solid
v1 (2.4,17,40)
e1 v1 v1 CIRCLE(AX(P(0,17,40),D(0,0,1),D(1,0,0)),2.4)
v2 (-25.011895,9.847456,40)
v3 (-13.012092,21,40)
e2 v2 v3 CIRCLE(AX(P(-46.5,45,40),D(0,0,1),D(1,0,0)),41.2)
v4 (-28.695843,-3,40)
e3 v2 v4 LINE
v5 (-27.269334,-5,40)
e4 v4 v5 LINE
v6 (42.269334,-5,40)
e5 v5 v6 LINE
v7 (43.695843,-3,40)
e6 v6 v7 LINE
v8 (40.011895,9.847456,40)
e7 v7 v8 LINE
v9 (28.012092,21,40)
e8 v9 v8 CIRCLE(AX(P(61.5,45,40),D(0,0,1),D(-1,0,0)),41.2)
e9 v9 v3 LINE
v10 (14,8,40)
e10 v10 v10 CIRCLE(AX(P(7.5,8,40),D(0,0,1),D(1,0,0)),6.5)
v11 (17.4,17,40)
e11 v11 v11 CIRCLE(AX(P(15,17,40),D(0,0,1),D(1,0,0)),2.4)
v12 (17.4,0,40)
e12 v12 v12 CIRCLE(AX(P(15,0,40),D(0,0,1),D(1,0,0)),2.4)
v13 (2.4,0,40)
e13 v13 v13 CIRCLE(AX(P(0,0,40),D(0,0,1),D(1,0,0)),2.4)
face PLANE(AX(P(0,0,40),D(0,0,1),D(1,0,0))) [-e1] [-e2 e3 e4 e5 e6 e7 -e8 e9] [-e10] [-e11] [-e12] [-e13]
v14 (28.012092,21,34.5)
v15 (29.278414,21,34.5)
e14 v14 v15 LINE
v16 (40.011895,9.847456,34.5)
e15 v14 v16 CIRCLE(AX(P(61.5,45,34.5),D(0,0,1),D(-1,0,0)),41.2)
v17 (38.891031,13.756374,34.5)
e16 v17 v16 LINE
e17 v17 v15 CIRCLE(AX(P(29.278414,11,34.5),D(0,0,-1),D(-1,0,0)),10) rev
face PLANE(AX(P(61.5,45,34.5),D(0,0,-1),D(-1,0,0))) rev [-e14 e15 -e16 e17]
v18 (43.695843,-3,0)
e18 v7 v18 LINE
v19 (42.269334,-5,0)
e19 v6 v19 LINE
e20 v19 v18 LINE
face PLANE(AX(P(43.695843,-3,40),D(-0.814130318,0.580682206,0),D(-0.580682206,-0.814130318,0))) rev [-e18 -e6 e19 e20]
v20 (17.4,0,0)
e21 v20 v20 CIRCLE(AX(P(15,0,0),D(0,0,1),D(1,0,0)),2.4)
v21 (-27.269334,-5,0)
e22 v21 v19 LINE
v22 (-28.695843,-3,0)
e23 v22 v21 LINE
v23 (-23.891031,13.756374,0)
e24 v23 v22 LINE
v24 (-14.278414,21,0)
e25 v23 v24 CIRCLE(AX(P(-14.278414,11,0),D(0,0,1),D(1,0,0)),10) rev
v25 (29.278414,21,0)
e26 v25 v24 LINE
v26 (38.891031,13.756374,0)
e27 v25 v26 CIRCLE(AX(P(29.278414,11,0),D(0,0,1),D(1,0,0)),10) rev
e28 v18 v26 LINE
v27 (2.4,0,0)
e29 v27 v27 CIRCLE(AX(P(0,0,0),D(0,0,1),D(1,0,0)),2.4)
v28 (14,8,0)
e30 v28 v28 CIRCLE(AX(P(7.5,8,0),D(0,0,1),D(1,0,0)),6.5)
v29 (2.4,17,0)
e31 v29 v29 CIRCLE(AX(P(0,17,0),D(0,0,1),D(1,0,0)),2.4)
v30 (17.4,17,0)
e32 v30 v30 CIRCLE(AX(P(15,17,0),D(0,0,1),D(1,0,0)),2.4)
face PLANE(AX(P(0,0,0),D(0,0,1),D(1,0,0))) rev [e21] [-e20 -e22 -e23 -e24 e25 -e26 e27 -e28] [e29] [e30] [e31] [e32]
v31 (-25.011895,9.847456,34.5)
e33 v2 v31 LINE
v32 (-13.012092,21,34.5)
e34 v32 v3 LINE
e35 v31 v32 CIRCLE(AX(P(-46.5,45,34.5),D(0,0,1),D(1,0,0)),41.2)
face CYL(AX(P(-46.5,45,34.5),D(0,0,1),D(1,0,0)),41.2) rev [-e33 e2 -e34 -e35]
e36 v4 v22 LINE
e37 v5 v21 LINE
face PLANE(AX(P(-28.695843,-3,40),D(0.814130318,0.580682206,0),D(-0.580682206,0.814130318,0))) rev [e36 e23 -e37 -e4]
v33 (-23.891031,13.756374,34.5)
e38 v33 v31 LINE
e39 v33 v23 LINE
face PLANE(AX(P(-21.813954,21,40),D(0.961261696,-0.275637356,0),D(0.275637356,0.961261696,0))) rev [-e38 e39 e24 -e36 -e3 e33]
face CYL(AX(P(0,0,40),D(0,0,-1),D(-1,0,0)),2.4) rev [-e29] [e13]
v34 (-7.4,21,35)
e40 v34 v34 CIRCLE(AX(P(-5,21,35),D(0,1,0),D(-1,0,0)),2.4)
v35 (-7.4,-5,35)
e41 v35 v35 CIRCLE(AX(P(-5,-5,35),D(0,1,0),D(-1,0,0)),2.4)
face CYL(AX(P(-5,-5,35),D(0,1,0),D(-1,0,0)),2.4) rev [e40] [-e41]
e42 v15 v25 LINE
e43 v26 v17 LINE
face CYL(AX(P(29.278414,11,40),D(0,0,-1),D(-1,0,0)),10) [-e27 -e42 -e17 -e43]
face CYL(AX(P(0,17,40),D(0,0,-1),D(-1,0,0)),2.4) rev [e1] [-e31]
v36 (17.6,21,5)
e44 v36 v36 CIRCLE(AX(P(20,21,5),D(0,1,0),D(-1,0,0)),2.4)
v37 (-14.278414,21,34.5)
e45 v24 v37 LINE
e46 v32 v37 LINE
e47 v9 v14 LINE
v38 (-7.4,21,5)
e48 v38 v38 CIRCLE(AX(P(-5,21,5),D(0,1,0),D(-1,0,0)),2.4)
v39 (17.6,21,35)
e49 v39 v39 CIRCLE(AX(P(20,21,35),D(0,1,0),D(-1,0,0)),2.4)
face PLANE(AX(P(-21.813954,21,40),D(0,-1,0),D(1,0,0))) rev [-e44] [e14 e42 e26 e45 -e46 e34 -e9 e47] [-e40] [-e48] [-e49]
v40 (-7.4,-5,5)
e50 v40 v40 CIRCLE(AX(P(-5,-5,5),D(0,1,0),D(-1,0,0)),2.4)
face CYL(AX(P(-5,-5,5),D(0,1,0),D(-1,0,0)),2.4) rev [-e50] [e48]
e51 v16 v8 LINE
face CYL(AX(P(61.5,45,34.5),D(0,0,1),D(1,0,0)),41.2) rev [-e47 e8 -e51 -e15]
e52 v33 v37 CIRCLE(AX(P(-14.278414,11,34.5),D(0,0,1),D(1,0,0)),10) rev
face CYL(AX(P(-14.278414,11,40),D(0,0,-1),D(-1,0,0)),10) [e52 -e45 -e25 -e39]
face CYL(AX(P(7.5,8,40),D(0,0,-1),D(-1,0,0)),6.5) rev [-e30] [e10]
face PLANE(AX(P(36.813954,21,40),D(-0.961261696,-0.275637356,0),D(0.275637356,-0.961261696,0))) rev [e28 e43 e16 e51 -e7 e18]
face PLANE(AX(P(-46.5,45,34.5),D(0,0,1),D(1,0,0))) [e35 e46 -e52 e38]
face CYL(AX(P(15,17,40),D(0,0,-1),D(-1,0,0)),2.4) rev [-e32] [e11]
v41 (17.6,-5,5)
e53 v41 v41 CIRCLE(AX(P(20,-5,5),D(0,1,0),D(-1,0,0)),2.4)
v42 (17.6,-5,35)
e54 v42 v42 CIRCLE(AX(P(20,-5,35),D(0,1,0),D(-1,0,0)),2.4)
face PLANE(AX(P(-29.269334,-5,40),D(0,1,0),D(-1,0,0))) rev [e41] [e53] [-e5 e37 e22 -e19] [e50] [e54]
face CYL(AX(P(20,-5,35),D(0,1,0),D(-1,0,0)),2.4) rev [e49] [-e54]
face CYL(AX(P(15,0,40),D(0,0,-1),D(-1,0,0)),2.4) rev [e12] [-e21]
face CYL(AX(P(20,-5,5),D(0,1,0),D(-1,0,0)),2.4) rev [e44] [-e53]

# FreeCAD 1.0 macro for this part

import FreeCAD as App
import Part
import Sketcher
from FreeCAD import Vector
Q = App.Units.Quantity


def edges_at(feature, points):
    """Names of the edges that pass closest to the given points."""
    edges = feature.Shape.Edges
    near = lambda p: min(range(len(edges)), key=lambda i: edges[i].distToShape(Part.Vertex(*p))[0])
    return sorted({f"Edge{near(p) + 1}" for p in points})

doc = App.newDocument("Part")
body = doc.addObject("PartDesign::Body", "Body")

# Sketch on XY plane
sketch1 = body.newObject("Sketcher::SketchObject", "Sketch")
sketch1.AttachmentSupport = (doc.getObject("XY_Plane"), [""])
sketch1.MapMode = "FlatFace"
sketch1.addGeometry([
    Part.LineSegment(Vector(-29.3, -5, 0), Vector(44.3, -5, 0)),  # 0
    Part.LineSegment(Vector(44.3, -5, 0), Vector(36.8, 21, 0)),  # 1
    Part.LineSegment(Vector(36.8, 21, 0), Vector(-21.8, 21, 0)),  # 2
    Part.LineSegment(Vector(-21.8, 21, 0), Vector(-29.3, -5, 0)),  # 3
    Part.Circle(Vector(0, 0, 0), Vector(0, 0, 1), 2.4),  # 4
    Part.Circle(Vector(15, 0, 0), Vector(0, 0, 1), 2.4),  # 5
    Part.Circle(Vector(7.5, 8, 0), Vector(0, 0, 1), 6.5),  # 6
    Part.Circle(Vector(0, 17, 0), Vector(0, 0, 1), 2.4),  # 7
    Part.Circle(Vector(15, 17, 0), Vector(0, 0, 1), 2.4),  # 8
], False)
sketch1.addConstraint([
    Sketcher.Constraint("Coincident", 0, 2, 1, 1),
    Sketcher.Constraint("Coincident", 1, 2, 2, 1),
    Sketcher.Constraint("Coincident", 2, 2, 3, 1),
    Sketcher.Constraint("Coincident", 3, 2, 0, 1),
    Sketcher.Constraint("Horizontal", 0),
    Sketcher.Constraint("Horizontal", 2),
    Sketcher.Constraint("Coincident", 4, 3, -1, 1),
    Sketcher.Constraint("Equal", 4, 5),
    Sketcher.Constraint("Equal", 5, 7),
    Sketcher.Constraint("Equal", 7, 8),
    Sketcher.Constraint("PointOnObject", 5, 3, -1),
    Sketcher.Constraint("PointOnObject", 7, 3, -2),
    Sketcher.Constraint("Horizontal", 7, 3, 8, 3),
    Sketcher.Constraint("Vertical", 5, 3, 8, 3),
    Sketcher.Constraint("Equal", 1, 3),
    Sketcher.Constraint("Diameter", 6, 13.0),
    Sketcher.Constraint("Diameter", 4, 4.8),
    Sketcher.Constraint("Angle", 1, Q("106 deg")),
    Sketcher.Constraint("DistanceX", -1, 1, 5, 3, 15.0),
    Sketcher.Constraint("DistanceY", -1, 1, 6, 3, 8.0),
    Sketcher.Constraint("DistanceY", -1, 1, 7, 3, 17.0),
    Sketcher.Constraint("DistanceY", 0, 2, -1, 1, 5.0),
    Sketcher.Constraint("DistanceY", -1, 1, 1, 2, 21.0),
    Sketcher.Constraint("DistanceX", -1, 1, 6, 3, 7.5),
    Sketcher.Constraint("DistanceX", 0, 1, 0, 2, 73.538668),
    Sketcher.Constraint("DistanceX", -1, 1, 0, 2, 44.269334),
])
pad1 = body.newObject("PartDesign::Pad", "Pad")
pad1.Profile = sketch1
pad1.Length = 40
doc.recompute()

fillet = body.newObject("PartDesign::Fillet", "Fillet")
fillet.Base = (pad1, edges_at(pad1, [(-21.814, 21, 20), (36.814, 21, 20)]))
fillet.Radius = 10

# Sketch on XZ plane
sketch2 = body.newObject("Sketcher::SketchObject", "Sketch001")
sketch2.AttachmentSupport = (doc.getObject("XZ_Plane"), [""])
sketch2.MapMode = "FlatFace"
sketch2.AttachmentOffset = App.Placement(Vector(0, 0, -21), App.Rotation())
sketch2.addGeometry([
    Part.Circle(Vector(-5, 5, 0), Vector(0, 0, 1), 2.4),
    Part.Circle(Vector(20, 5, 0), Vector(0, 0, 1), 2.4),
    Part.Circle(Vector(-5, 35, 0), Vector(0, 0, 1), 2.4),
    Part.Circle(Vector(20, 35, 0), Vector(0, 0, 1), 2.4),
], False)
sketch2.addConstraint([
    Sketcher.Constraint("Equal", 0, 1),
    Sketcher.Constraint("Equal", 1, 2),
    Sketcher.Constraint("Equal", 2, 3),
    Sketcher.Constraint("Horizontal", 0, 3, 1, 3),
    Sketcher.Constraint("Horizontal", 2, 3, 3, 3),
    Sketcher.Constraint("Vertical", 0, 3, 2, 3),
    Sketcher.Constraint("Vertical", 1, 3, 3, 3),
    Sketcher.Constraint("Diameter", 0, 4.8),
    Sketcher.Constraint("DistanceX", 0, 3, -1, 1, 5.0),
    Sketcher.Constraint("DistanceY", -1, 1, 0, 3, 5.0),
    Sketcher.Constraint("DistanceX", -1, 1, 1, 3, 20.0),
    Sketcher.Constraint("DistanceY", -1, 1, 2, 3, 35.0),
])
pocket1 = body.newObject("PartDesign::Pocket", "Pocket")
pocket1.Profile = sketch2
pocket1.Type = "ThroughAll"
pocket1.Reversed = True

# Sketch on XY plane
sketch3 = body.newObject("Sketcher::SketchObject", "Sketch002")
sketch3.AttachmentSupport = (doc.getObject("XY_Plane"), [""])
sketch3.MapMode = "FlatFace"
sketch3.AttachmentOffset = App.Placement(Vector(0, 0, 40), App.Rotation())
sketch3.addGeometry([
    Part.Circle(Vector(-46, 45, 0), Vector(0, 0, 1), 41),
    Part.Circle(Vector(62, 45, 0), Vector(0, 0, 1), 41),
], False)
sketch3.addConstraint([
    Sketcher.Constraint("Equal", 0, 1),
    Sketcher.Constraint("Horizontal", 0, 3, 1, 3),
    Sketcher.Constraint("Diameter", 0, 82.4),
    Sketcher.Constraint("DistanceY", -1, 1, 0, 3, 45.0),
    Sketcher.Constraint("DistanceX", 0, 3, 1, 3, 108.0),
    Sketcher.Constraint("DistanceX", 0, 3, -1, 1, 46.5),
])
pocket2 = body.newObject("PartDesign::Pocket", "Pocket001")
pocket2.Profile = sketch3
pocket2.Length = 5.5

# Sketch on XY plane
sketch4 = body.newObject("Sketcher::SketchObject", "Sketch003")
sketch4.AttachmentSupport = (doc.getObject("XY_Plane"), [""])
sketch4.MapMode = "FlatFace"
sketch4.addGeometry([
    Part.LineSegment(Vector(44.3, -5, 0), Vector(42.3, -5, 0)),  # 0
    Part.LineSegment(Vector(42.3, -5, 0), Vector(43.7, -3, 0)),  # 1
    Part.LineSegment(Vector(43.7, -3, 0), Vector(44.3, -5, 0)),  # 2
    Part.LineSegment(Vector(-28.7, -3, 0), Vector(-27.3, -5, 0)),  # 3
    Part.LineSegment(Vector(-27.3, -5, 0), Vector(-29.3, -5, 0)),  # 4
    Part.LineSegment(Vector(-29.3, -5, 0), Vector(-28.7, -3, 0)),  # 5
], False)
sketch4.addConstraint([
    Sketcher.Constraint("Coincident", 0, 2, 1, 1),
    Sketcher.Constraint("Coincident", 1, 2, 2, 1),
    Sketcher.Constraint("Coincident", 2, 2, 0, 1),
    Sketcher.Constraint("Coincident", 3, 2, 4, 1),
    Sketcher.Constraint("Coincident", 4, 2, 5, 1),
    Sketcher.Constraint("Coincident", 5, 2, 3, 1),
    Sketcher.Constraint("Horizontal", 0),
    Sketcher.Constraint("Horizontal", 4),
    Sketcher.Constraint("Horizontal", 2, 2, 3, 2),
    Sketcher.Constraint("Horizontal", 1, 2, 5, 2),
    Sketcher.Constraint("Equal", 0, 4),
    Sketcher.Constraint("Equal", 1, 3),
    Sketcher.Constraint("DistanceX", 0, 2, 0, 1, 2.0),
    Sketcher.Constraint("Angle", 2, Q("-74 deg")),
    Sketcher.Constraint("DistanceY", 0, 2, -1, 1, 5.0),
    Sketcher.Constraint("DistanceY", 1, 2, -1, 1, 3.0),
    Sketcher.Constraint("DistanceX", 3, 2, 0, 2, 69.538668),
    Sketcher.Constraint("DistanceX", -1, 1, 0, 2, 42.269334),
])
pocket3 = body.newObject("PartDesign::Pocket", "Pocket002")
pocket3.Profile = sketch4
pocket3.Type = "ThroughAll"
pocket3.Reversed = True

doc.recompute()
